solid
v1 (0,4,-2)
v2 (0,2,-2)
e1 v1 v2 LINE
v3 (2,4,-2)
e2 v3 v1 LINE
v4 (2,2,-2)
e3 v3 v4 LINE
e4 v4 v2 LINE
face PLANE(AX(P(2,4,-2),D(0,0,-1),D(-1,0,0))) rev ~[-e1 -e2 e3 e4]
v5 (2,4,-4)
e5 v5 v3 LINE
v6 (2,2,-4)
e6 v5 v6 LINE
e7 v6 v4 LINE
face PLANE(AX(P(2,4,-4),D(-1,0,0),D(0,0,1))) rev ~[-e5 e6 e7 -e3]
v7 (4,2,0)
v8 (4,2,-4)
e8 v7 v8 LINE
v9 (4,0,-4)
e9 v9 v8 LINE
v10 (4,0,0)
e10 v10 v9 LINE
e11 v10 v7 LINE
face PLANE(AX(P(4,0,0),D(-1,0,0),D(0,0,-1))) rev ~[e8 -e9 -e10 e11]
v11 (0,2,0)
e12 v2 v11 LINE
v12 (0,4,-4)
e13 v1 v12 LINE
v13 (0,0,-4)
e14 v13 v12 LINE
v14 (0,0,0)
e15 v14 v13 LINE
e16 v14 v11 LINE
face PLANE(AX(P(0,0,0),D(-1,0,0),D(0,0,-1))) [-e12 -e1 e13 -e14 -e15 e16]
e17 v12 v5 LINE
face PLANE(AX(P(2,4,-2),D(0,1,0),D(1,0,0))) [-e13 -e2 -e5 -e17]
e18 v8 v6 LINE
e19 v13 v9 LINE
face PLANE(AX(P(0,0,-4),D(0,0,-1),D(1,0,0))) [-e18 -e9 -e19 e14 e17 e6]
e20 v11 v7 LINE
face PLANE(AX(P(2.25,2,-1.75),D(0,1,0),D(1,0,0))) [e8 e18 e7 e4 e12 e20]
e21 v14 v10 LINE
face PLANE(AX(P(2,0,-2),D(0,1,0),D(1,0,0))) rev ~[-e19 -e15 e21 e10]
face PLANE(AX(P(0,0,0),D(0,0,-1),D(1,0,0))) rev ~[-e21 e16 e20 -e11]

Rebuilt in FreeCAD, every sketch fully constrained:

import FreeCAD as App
import Part
import Sketcher
from FreeCAD import Vector
Q = App.Units.Quantity


def add_polygon(sketch, points):
    """Adds a closed chain of lines whose ends are joined by coincident constraints."""
    first, n = sketch.GeometryCount, len(points)
    for a, b in zip(points, points[1:] + points[:1]):
        sketch.addGeometry(Part.LineSegment(App.Vector(*a, 0), App.Vector(*b, 0)), False)
    for i in range(n):
        sketch.addConstraint(Sketcher.Constraint("Coincident", first + i, 2, first + (i + 1) % n, 1))

doc = App.newDocument("Part")
body = doc.addObject("PartDesign::Body", "Body")

# Sketch on XZ plane
sketch1 = doc.addObject("Sketcher::SketchObject", "Sketch")
body.addObject(sketch1)
sketch1.AttachmentSupport = (doc.XZ_Plane, [""])
sketch1.MapMode = "FlatFace"
add_polygon(sketch1, [(0, -4), (0, 0), (4, 0), (4, -4)])  # lines 0-3
sketch1.addConstraint([
    Sketcher.Constraint("Vertical", 0),
    Sketcher.Constraint("Horizontal", 1),
    Sketcher.Constraint("Vertical", 2),
    Sketcher.Constraint("Horizontal", 3),
    Sketcher.Constraint("Coincident", 0, 2, -1, 1),
    Sketcher.Constraint("Equal", 3, 0),
    Sketcher.Constraint("DistanceX", 1, 1, 1, 2, Q("4 mm")),
])
pad1 = doc.addObject("PartDesign::Pad", "Pad")
body.addObject(pad1)
pad1.Profile = sketch1
pad1.Length = 4
pad1.Reversed = True

# Sketch on XZ plane
sketch2 = doc.addObject("Sketcher::SketchObject", "Sketch001")
body.addObject(sketch2)
sketch2.AttachmentSupport = (doc.XZ_Plane, [""])
sketch2.MapMode = "FlatFace"
sketch2.AttachmentOffset = App.Placement(Vector(0, 0, -4), App.Rotation())
add_polygon(sketch2, [(4, -4), (2, -4), (2, -2), (0, -2), (0, 0), (4, 0)])  # lines 0-5
sketch2.addConstraint([
    Sketcher.Constraint("Horizontal", 0),
    Sketcher.Constraint("Vertical", 1),
    Sketcher.Constraint("Horizontal", 2),
    Sketcher.Constraint("Vertical", 3),
    Sketcher.Constraint("Horizontal", 4),
    Sketcher.Constraint("Vertical", 5),
    Sketcher.Constraint("Coincident", 3, 2, -1, 1),
    Sketcher.Constraint("Equal", 0, 2),
    Sketcher.Constraint("Equal", 2, 1),
    Sketcher.Constraint("Equal", 1, 3),
    Sketcher.Constraint("DistanceX", 0, 2, 0, 1, Q("2 mm")),
])
pocket1 = doc.addObject("PartDesign::Pocket", "Pocket")
body.addObject(pocket1)
pocket1.Profile = sketch2
pocket1.Length = 2
pocket1.Reversed = True

doc.recompute()
